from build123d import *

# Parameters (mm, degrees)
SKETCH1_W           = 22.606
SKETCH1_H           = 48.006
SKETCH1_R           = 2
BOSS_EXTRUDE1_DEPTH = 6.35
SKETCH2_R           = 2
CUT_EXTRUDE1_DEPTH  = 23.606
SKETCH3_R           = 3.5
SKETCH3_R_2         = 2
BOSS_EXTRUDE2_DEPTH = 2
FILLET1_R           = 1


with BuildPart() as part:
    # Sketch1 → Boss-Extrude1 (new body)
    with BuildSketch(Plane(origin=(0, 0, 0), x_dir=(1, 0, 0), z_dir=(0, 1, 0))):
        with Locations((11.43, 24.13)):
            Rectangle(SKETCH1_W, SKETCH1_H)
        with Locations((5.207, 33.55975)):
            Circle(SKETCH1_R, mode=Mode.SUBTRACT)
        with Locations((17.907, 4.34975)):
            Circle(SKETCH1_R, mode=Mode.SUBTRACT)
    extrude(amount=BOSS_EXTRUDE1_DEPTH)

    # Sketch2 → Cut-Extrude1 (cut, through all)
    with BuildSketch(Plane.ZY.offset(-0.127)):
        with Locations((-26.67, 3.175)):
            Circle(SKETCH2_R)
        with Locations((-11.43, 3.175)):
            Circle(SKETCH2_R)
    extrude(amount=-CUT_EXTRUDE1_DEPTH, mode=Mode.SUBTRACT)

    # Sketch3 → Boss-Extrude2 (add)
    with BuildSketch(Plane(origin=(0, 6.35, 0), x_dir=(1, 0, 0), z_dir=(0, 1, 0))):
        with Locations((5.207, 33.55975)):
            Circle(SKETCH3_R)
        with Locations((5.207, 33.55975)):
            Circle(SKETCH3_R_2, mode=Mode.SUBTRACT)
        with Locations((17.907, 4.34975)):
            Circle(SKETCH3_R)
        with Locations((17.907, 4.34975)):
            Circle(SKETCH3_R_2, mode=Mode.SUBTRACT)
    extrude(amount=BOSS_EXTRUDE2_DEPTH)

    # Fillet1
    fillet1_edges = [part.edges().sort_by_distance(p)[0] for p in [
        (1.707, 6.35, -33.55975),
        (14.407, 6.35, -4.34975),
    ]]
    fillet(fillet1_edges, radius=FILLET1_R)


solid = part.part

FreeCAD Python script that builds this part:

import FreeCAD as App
import Part
import Sketcher
Q = App.Units.Quantity


def edges_at(feature, points):
    """Names of the edges that pass closest to the given points."""
    edges = feature.Shape.Edges
    near = lambda p: min(range(len(edges)), key=lambda i: edges[i].distToShape(Part.Vertex(*p))[0])
    return sorted({f"Edge{near(p) + 1}" for p in points})

doc = App.newDocument("Part")
body = doc.addObject("PartDesign::Body", "Body")

# Sketch on XZ plane
sketch1 = body.newObject("Sketcher::SketchObject", "Sketch")
sketch1.AttachmentSupport = (doc.getObject("XZ_Plane"), [""])
sketch1.MapMode = "FlatFace"
sketch1.addGeometry(Part.LineSegment(App.Vector(0.127, -48.133, 0), App.Vector(0.127, -0.127, 0)), False)
sketch1.addGeometry(Part.LineSegment(App.Vector(0.127, -0.127, 0), App.Vector(22.733, -0.127, 0)), False)
sketch1.addGeometry(Part.LineSegment(App.Vector(22.733, -0.127, 0), App.Vector(22.733, -48.133, 0)), False)
sketch1.addGeometry(Part.LineSegment(App.Vector(22.733, -48.133, 0), App.Vector(0.127, -48.133, 0)), False)
sketch1.addGeometry(Part.Circle(App.Vector(17.907, -4.34975, 0), App.Vector(0, 0, 1), 2), False)
sketch1.addGeometry(Part.Circle(App.Vector(5.207, -33.55975, 0), App.Vector(0, 0, 1), 2), False)
sketch1.addConstraint(Sketcher.Constraint("Coincident", 0, 2, 1, 1))
sketch1.addConstraint(Sketcher.Constraint("Coincident", 1, 2, 2, 1))
sketch1.addConstraint(Sketcher.Constraint("Coincident", 2, 2, 3, 1))
sketch1.addConstraint(Sketcher.Constraint("Coincident", 3, 2, 0, 1))
sketch1.addConstraint(Sketcher.Constraint("Vertical", 0))
sketch1.addConstraint(Sketcher.Constraint("Horizontal", 1))
sketch1.addConstraint(Sketcher.Constraint("Vertical", 2))
sketch1.addConstraint(Sketcher.Constraint("Horizontal", 3))
sketch1.addConstraint(Sketcher.Constraint("Equal", 4, 5))
sketch1.addConstraint(Sketcher.Constraint("Diameter", 4, Q("4 mm")))
sketch1.addConstraint(Sketcher.Constraint("DistanceX", 5, 3, 4, 3, Q("12.7 mm")))
sketch1.addConstraint(Sketcher.Constraint("DistanceX", 1, 1, 1, 2, Q("22.606 mm")))
sketch1.addConstraint(Sketcher.Constraint("DistanceY", 0, 1, 0, 2, Q("48.006 mm")))
sketch1.addConstraint(Sketcher.Constraint("DistanceY", 5, 3, 4, 3, Q("29.21 mm")))
sketch1.addConstraint(Sketcher.Constraint("DistanceX", 0, 2, 4, 3, Q("17.78 mm")))
sketch1.addConstraint(Sketcher.Constraint("DistanceX", -1, 1, 4, 3, Q("17.907 mm")))
sketch1.addConstraint(Sketcher.Constraint("DistanceY", 0, 2, -1, 1, Q("0.127 mm")))
sketch1.addConstraint(Sketcher.Constraint("DistanceY", 4, 3, -1, 1, Q("4.34975 mm")))
pad1 = body.newObject("PartDesign::Pad", "Pad")
pad1.Profile = sketch1
pad1.Length = 6.35
pad1.Reversed = True

# Sketch on YZ plane
sketch2 = body.newObject("Sketcher::SketchObject", "Sketch001")
sketch2.AttachmentSupport = (doc.getObject("YZ_Plane"), [""])
sketch2.MapMode = "FlatFace"
sketch2.AttachmentOffset = App.Placement(App.Vector(0, 0, 0.127), App.Rotation())
sketch2.addGeometry(Part.Circle(App.Vector(3.175, -26.67, 0), App.Vector(0, 0, 1), 2), False)
sketch2.addGeometry(Part.Circle(App.Vector(3.175, -11.43, 0), App.Vector(0, 0, 1), 2), False)
sketch2.addConstraint(Sketcher.Constraint("Equal", 0, 1))
sketch2.addConstraint(Sketcher.Constraint("Vertical", 0, 3, 1, 3))
sketch2.addConstraint(Sketcher.Constraint("Diameter", 0, Q("4 mm")))
sketch2.addConstraint(Sketcher.Constraint("DistanceY", 0, 3, -1, 1, Q("26.67 mm")))
sketch2.addConstraint(Sketcher.Constraint("DistanceY", 1, 3, -1, 1, Q("11.43 mm")))
sketch2.addConstraint(Sketcher.Constraint("DistanceX", -1, 1, 0, 3, Q("3.175 mm")))
pocket1 = body.newObject("PartDesign::Pocket", "Pocket")
pocket1.Profile = sketch2
pocket1.Type = "ThroughAll"
pocket1.Reversed = True

# Sketch on XZ plane
sketch3 = body.newObject("Sketcher::SketchObject", "Sketch002")
sketch3.AttachmentSupport = (doc.getObject("XZ_Plane"), [""])
sketch3.MapMode = "FlatFace"
sketch3.AttachmentOffset = App.Placement(App.Vector(0, 0, -6.35), App.Rotation())
sketch3.addGeometry(Part.Circle(App.Vector(5.207, -33.55975, 0), App.Vector(0, 0, 1), 3.5), False)
sketch3.addGeometry(Part.Circle(App.Vector(5.207, -33.55975, 0), App.Vector(0, 0, 1), 2), False)
sketch3.addGeometry(Part.Circle(App.Vector(17.907, -4.34975, 0), App.Vector(0, 0, 1), 3.5), False)
sketch3.addGeometry(Part.Circle(App.Vector(17.907, -4.34975, 0), App.Vector(0, 0, 1), 2), False)
sketch3.addConstraint(Sketcher.Constraint("Coincident", 1, 3, 0, 3))
sketch3.addConstraint(Sketcher.Constraint("Coincident", 3, 3, 2, 3))
sketch3.addConstraint(Sketcher.Constraint("Equal", 0, 2))
sketch3.addConstraint(Sketcher.Constraint("Equal", 1, 3))
sketch3.addConstraint(Sketcher.Constraint("Diameter", 0, Q("7 mm")))
sketch3.addConstraint(Sketcher.Constraint("Diameter", 1, Q("4 mm")))
sketch3.addConstraint(Sketcher.Constraint("DistanceX", 0, 3, 2, 3, Q("12.7 mm")))
sketch3.addConstraint(Sketcher.Constraint("DistanceY", 0, 3, 2, 3, Q("29.21 mm")))
sketch3.addConstraint(Sketcher.Constraint("DistanceX", -1, 1, 0, 3, Q("5.207 mm")))
sketch3.addConstraint(Sketcher.Constraint("DistanceY", 0, 3, -1, 1, Q("33.55975 mm")))
pad2 = body.newObject("PartDesign::Pad", "Pad001")
pad2.Profile = sketch3
pad2.Length = 2
pad2.Reversed = True
doc.recompute()

fillet = body.newObject("PartDesign::Fillet", "Fillet")
fillet.Base = (pad2, edges_at(pad2, [(1.707, 6.35, -33.56), (14.407, 6.35, -4.35)]))
fillet.Radius = 1

doc.recompute()
